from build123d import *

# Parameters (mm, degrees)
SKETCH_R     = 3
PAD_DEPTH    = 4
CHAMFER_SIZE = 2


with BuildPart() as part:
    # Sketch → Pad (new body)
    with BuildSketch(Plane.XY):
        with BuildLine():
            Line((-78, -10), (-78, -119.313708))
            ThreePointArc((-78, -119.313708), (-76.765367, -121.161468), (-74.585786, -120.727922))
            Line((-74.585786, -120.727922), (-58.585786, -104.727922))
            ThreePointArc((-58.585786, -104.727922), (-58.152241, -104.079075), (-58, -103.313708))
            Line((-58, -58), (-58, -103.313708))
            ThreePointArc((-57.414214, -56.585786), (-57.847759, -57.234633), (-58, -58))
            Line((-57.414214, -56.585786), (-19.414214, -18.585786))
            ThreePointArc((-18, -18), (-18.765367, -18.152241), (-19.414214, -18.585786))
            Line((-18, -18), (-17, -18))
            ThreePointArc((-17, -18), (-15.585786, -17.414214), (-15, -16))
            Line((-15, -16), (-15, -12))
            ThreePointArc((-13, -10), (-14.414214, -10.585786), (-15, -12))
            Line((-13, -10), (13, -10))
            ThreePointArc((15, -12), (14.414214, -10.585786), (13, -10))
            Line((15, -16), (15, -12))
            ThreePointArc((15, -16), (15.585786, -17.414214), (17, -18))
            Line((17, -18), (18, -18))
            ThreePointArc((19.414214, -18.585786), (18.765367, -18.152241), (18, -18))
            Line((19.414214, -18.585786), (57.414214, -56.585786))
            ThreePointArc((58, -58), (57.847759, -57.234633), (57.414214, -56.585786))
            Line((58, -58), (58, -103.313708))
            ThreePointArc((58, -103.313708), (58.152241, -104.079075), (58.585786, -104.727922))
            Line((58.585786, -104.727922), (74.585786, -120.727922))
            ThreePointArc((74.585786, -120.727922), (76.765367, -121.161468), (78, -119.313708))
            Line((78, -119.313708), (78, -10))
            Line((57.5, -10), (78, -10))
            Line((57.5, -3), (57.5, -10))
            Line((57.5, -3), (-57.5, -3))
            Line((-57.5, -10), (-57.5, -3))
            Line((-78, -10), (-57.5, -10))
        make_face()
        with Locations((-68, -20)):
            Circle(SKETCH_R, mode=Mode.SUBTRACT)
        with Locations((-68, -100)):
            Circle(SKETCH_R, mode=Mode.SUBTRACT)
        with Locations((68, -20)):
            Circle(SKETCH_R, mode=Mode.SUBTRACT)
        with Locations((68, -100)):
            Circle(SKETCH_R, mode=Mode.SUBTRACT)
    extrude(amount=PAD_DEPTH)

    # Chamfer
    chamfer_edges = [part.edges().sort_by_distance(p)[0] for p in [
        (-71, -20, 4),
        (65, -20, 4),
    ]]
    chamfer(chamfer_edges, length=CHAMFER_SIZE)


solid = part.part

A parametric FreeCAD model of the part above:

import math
import FreeCAD as App
import Part
import Sketcher
Q = App.Units.Quantity


def edges_at(feature, points):
    """Names of the edges that pass closest to the given points."""
    edges = feature.Shape.Edges
    near = lambda p: min(range(len(edges)), key=lambda i: edges[i].distToShape(Part.Vertex(*p))[0])
    return sorted({f"Edge{near(p) + 1}" for p in points})

doc = App.newDocument("Part")
params = doc.addObject("Spreadsheet::Sheet", "Params")
for row, (alias, value) in enumerate([
    ("sketch1_diameter", "6 mm"),
    ("sketch1_radius", "2 mm"),
    ("sketch1_width", "1 mm"),
    ("sketch1_width2", "26 mm"),
    ("sketch1_width3", "115 mm"),
    ("pad1_length", "4 mm"),
    ("chamfer_size", "2 mm"),
], start=1):
    params.set(f"A{row}", alias)
    params.set(f"B{row}", "=" + value)
    params.setAlias(f"B{row}", alias)

body = doc.addObject("PartDesign::Body", "Body")

# Sketch on XY plane
sketch1 = doc.addObject("Sketcher::SketchObject", "Sketch")
body.addObject(sketch1)
sketch1.AttachmentSupport = (doc.XY_Plane, [""])
sketch1.MapMode = "FlatFace"
sketch1.addGeometry([
    Part.LineSegment(App.Vector(-78, -10, 0), App.Vector(-78, -119.313708, 0)),  # 0
    Part.ArcOfCircle(Part.Circle(App.Vector(-76, -119.313709, 0), App.Vector(0, 0, 1), 2), math.radians(179.99997), math.radians(315.000022)),  # 1
    Part.LineSegment(App.Vector(-74.585786, -120.727922, 0), App.Vector(-58.585786, -104.727922, 0)),  # 2
    Part.ArcOfCircle(Part.Circle(App.Vector(-60.000004, -103.313707, 0), App.Vector(0, 0, 1), 2.000004), math.radians(-44.999933), math.radians(-0.000024)),  # 3
    Part.LineSegment(App.Vector(-58, -103.313708, 0), App.Vector(-58, -58, 0)),  # 4
    Part.ArcOfCircle(Part.Circle(App.Vector(-55.999996, -58.000001, 0), App.Vector(0, 0, 1), 2.000004), math.radians(135.000067), math.radians(179.999976)),  # 5
    Part.LineSegment(App.Vector(-57.414214, -56.585786, 0), App.Vector(-19.414214, -18.585786, 0)),  # 6
    Part.ArcOfCircle(Part.Circle(App.Vector(-17.999999, -20.000004, 0), App.Vector(0, 0, 1), 2.000004), math.radians(90.000024), math.radians(134.999933)),  # 7
    Part.LineSegment(App.Vector(-18, -18, 0), App.Vector(-17, -18, 0)),  # 8
    Part.ArcOfCircle(Part.Circle(App.Vector(-16.999999, -16.000001, 0), App.Vector(0, 0, 1), 1.999999), math.radians(-90.000043), math.radians(0.000043)),  # 9
    Part.LineSegment(App.Vector(-15, -16, 0), App.Vector(-15, -12, 0)),  # 10
    Part.ArcOfCircle(Part.Circle(App.Vector(-13.000001, -11.999999, 0), App.Vector(0, 0, 1), 1.999999), math.radians(89.999957), math.radians(180.000043)),  # 11
    Part.LineSegment(App.Vector(-13, -10, 0), App.Vector(13, -10, 0)),  # 12
    Part.ArcOfCircle(Part.Circle(App.Vector(13.000001, -11.999999, 0), App.Vector(0, 0, 1), 1.999999), math.radians(-0.000043), math.radians(90.000043)),  # 13
    Part.LineSegment(App.Vector(15, -12, 0), App.Vector(15, -16, 0)),  # 14
    Part.ArcOfCircle(Part.Circle(App.Vector(16.999999, -16.000001, 0), App.Vector(0, 0, 1), 1.999999), math.radians(179.999957), math.radians(270.000043)),  # 15
    Part.LineSegment(App.Vector(17, -18, 0), App.Vector(18, -18, 0)),  # 16
    Part.ArcOfCircle(Part.Circle(App.Vector(17.999999, -20.000004, 0), App.Vector(0, 0, 1), 2.000004), math.radians(45.000067), math.radians(89.999976)),  # 17
    Part.LineSegment(App.Vector(19.414214, -18.585786, 0), App.Vector(57.414214, -56.585786, 0)),  # 18
    Part.ArcOfCircle(Part.Circle(App.Vector(55.999996, -58.000001, 0), App.Vector(0, 0, 1), 2.000004), math.radians(0.000024), math.radians(44.999933)),  # 19
    Part.LineSegment(App.Vector(58, -58, 0), App.Vector(58, -103.313708, 0)),  # 20
    Part.ArcOfCircle(Part.Circle(App.Vector(60.000004, -103.313707, 0), App.Vector(0, 0, 1), 2.000004), math.radians(-179.999976), math.radians(-135.000067)),  # 21
    Part.LineSegment(App.Vector(58.585786, -104.727922, 0), App.Vector(74.585786, -120.727922, 0)),  # 22
    Part.ArcOfCircle(Part.Circle(App.Vector(76, -119.313709, 0), App.Vector(0, 0, 1), 2), math.radians(-135.000022), math.radians(0.00003)),  # 23
    Part.LineSegment(App.Vector(78, -119.313708, 0), App.Vector(78, -10, 0)),  # 24
    Part.LineSegment(App.Vector(78, -10, 0), App.Vector(57.5, -10, 0)),  # 25
    Part.LineSegment(App.Vector(57.5, -10, 0), App.Vector(57.5, -3, 0)),  # 26
    Part.LineSegment(App.Vector(57.5, -3, 0), App.Vector(-57.5, -3, 0)),  # 27
    Part.LineSegment(App.Vector(-57.5, -3, 0), App.Vector(-57.5, -10, 0)),  # 28
    Part.LineSegment(App.Vector(-57.5, -10, 0), App.Vector(-78, -10, 0)),  # 29
    Part.Circle(App.Vector(-68, -100, 0), App.Vector(0, 0, 1), 3),  # 30
    Part.Circle(App.Vector(68, -100, 0), App.Vector(0, 0, 1), 3),  # 31
    Part.Circle(App.Vector(-68, -20, 0), App.Vector(0, 0, 1), 3),  # 32
    Part.Circle(App.Vector(68, -20, 0), App.Vector(0, 0, 1), 3),  # 33
], False)
sketch1.addConstraint([
    Sketcher.Constraint("Tangent", 0, 2, 1, 1),
    Sketcher.Constraint("Tangent", 1, 2, 2, 1),
    Sketcher.Constraint("Tangent", 2, 2, 3, 1),
    Sketcher.Constraint("Tangent", 3, 2, 4, 1),
    Sketcher.Constraint("Tangent", 4, 2, 5, 2),
    Sketcher.Constraint("Tangent", 5, 1, 6, 1),
    Sketcher.Constraint("Tangent", 6, 2, 7, 2),
    Sketcher.Constraint("Tangent", 7, 1, 8, 1),
    Sketcher.Constraint("Tangent", 8, 2, 9, 1),
    Sketcher.Constraint("Tangent", 9, 2, 10, 1),
    Sketcher.Constraint("Tangent", 10, 2, 11, 2),
    Sketcher.Constraint("Tangent", 11, 1, 12, 1),
    Sketcher.Constraint("Tangent", 12, 2, 13, 2),
    Sketcher.Constraint("Tangent", 13, 1, 14, 1),
    Sketcher.Constraint("Tangent", 14, 2, 15, 1),
    Sketcher.Constraint("Tangent", 15, 2, 16, 1),
    Sketcher.Constraint("Tangent", 16, 2, 17, 2),
    Sketcher.Constraint("Tangent", 17, 1, 18, 1),
    Sketcher.Constraint("Tangent", 18, 2, 19, 2),
    Sketcher.Constraint("Tangent", 19, 1, 20, 1),
    Sketcher.Constraint("Tangent", 20, 2, 21, 1),
    Sketcher.Constraint("Tangent", 21, 2, 22, 1),
    Sketcher.Constraint("Tangent", 22, 2, 23, 1),
    Sketcher.Constraint("Tangent", 23, 2, 24, 1),
    Sketcher.Constraint("Coincident", 24, 2, 25, 1),
    Sketcher.Constraint("Coincident", 25, 2, 26, 1),
    Sketcher.Constraint("Coincident", 26, 2, 27, 1),
    Sketcher.Constraint("Coincident", 27, 2, 28, 1),
    Sketcher.Constraint("Coincident", 28, 2, 29, 1),
    Sketcher.Constraint("Coincident", 29, 2, 0, 1),
    Sketcher.Constraint("Vertical", 0),
    Sketcher.Constraint("Vertical", 4),
    Sketcher.Constraint("Horizontal", 8),
    Sketcher.Constraint("Vertical", 10),
    Sketcher.Constraint("Horizontal", 12),
    Sketcher.Constraint("Vertical", 14),
    Sketcher.Constraint("Horizontal", 16),
    Sketcher.Constraint("Vertical", 20),
    Sketcher.Constraint("Vertical", 24),
    Sketcher.Constraint("Horizontal", 25),
    Sketcher.Constraint("Vertical", 26),
    Sketcher.Constraint("Horizontal", 27),
    Sketcher.Constraint("Vertical", 28),
    Sketcher.Constraint("Horizontal", 29),
    Sketcher.Constraint("Equal", 3, 5),
    Sketcher.Constraint("Equal", 5, 7),
    Sketcher.Constraint("Equal", 1, 9),
    Sketcher.Constraint("Equal", 9, 11),
    Sketcher.Constraint("Equal", 11, 13),
    Sketcher.Constraint("Equal", 13, 15),
    Sketcher.Constraint("Equal", 7, 17),
    Sketcher.Constraint("Equal", 17, 19),
    Sketcher.Constraint("Equal", 19, 21),
    Sketcher.Constraint("Equal", 15, 23),
    Sketcher.Constraint("Equal", 30, 31),
    Sketcher.Constraint("Equal", 31, 32),
    Sketcher.Constraint("Equal", 32, 33),
    Sketcher.Constraint("Symmetric", 9, 3, 15, 3, -2),
    Sketcher.Constraint("Symmetric", 5, 3, 19, 3, -2),
    Sketcher.Constraint("Symmetric", 1, 3, 23, 3, -2),
    Sketcher.Constraint("Symmetric", 30, 3, 31, 3, -2),
    Sketcher.Constraint("Symmetric", 32, 3, 33, 3, -2),
    Sketcher.Constraint("Symmetric", 25, 2, 28, 2, -2),
    Sketcher.Constraint("Parallel", 2, 6),
    Sketcher.Constraint("Perpendicular", 6, 18),
    Sketcher.Constraint("Parallel", 18, 22),
    Sketcher.Constraint("Horizontal", 3, 3, 21, 3),
    Sketcher.Constraint("Horizontal", 12, 2, 24, 2),
    Sketcher.Constraint("Vertical", 30, 3, 32, 3),
    Sketcher.Constraint("Diameter", 30, Q("6 mm")),
    Sketcher.Constraint("Radius", 1, Q("2 mm")),
    Sketcher.Constraint("DistanceX", 8, 1, 8, 2, Q("1 mm")),
    Sketcher.Constraint("DistanceX", 12, 1, 12, 2, Q("26 mm")),
    Sketcher.Constraint("DistanceX", 27, 2, 27, 1, Q("115 mm")),
    Sketcher.Constraint("DistanceY", 10, 1, 10, 2, Q("4 mm")),
    Sketcher.Constraint("DistanceY", 26, 1, 26, 2, Q("7 mm")),
    Sketcher.Constraint("DistanceX", 25, 2, 25, 1, Q("20.5 mm")),
    Sketcher.Constraint("DistanceY", 5, 3, -1, 1, Q("58.000001 mm")),
    Sketcher.Constraint("DistanceY", 9, 3, -1, 1, Q("16.000001 mm")),
    Sketcher.Constraint("DistanceX", 30, 3, -1, 1, Q("68 mm")),
    Sketcher.Constraint("DistanceY", 30, 3, -1, 1, Q("100 mm")),
    Sketcher.Constraint("DistanceY", 32, 3, -1, 1, Q("20 mm")),
    Sketcher.Constraint("DistanceY", 1, 3, 3, 3, Q("16.000002 mm")),
    Sketcher.Constraint("DistanceY", 0, 2, 0, 1, Q("109.313708 mm")),
])
sketch1.setExpression("Constraints[69]", "Params.sketch1_diameter")
sketch1.setExpression("Constraints[70]", "Params.sketch1_radius")
sketch1.setExpression("Constraints[71]", "Params.sketch1_width")
sketch1.setExpression("Constraints[72]", "Params.sketch1_width2")
sketch1.setExpression("Constraints[73]", "Params.sketch1_width3")
pad1 = doc.addObject("PartDesign::Pad", "Pad")
body.addObject(pad1)
pad1.Profile = sketch1
pad1.setExpression("Length", "Params.pad1_length")
doc.recompute()

chamfer = doc.addObject("PartDesign::Chamfer", "Chamfer")
body.addObject(chamfer)
chamfer.Base = (pad1, edges_at(pad1, [(-71, -20, 4), (65, -20, 4)]))
chamfer.setExpression("Size", "Params.chamfer_size")

doc.recompute()
